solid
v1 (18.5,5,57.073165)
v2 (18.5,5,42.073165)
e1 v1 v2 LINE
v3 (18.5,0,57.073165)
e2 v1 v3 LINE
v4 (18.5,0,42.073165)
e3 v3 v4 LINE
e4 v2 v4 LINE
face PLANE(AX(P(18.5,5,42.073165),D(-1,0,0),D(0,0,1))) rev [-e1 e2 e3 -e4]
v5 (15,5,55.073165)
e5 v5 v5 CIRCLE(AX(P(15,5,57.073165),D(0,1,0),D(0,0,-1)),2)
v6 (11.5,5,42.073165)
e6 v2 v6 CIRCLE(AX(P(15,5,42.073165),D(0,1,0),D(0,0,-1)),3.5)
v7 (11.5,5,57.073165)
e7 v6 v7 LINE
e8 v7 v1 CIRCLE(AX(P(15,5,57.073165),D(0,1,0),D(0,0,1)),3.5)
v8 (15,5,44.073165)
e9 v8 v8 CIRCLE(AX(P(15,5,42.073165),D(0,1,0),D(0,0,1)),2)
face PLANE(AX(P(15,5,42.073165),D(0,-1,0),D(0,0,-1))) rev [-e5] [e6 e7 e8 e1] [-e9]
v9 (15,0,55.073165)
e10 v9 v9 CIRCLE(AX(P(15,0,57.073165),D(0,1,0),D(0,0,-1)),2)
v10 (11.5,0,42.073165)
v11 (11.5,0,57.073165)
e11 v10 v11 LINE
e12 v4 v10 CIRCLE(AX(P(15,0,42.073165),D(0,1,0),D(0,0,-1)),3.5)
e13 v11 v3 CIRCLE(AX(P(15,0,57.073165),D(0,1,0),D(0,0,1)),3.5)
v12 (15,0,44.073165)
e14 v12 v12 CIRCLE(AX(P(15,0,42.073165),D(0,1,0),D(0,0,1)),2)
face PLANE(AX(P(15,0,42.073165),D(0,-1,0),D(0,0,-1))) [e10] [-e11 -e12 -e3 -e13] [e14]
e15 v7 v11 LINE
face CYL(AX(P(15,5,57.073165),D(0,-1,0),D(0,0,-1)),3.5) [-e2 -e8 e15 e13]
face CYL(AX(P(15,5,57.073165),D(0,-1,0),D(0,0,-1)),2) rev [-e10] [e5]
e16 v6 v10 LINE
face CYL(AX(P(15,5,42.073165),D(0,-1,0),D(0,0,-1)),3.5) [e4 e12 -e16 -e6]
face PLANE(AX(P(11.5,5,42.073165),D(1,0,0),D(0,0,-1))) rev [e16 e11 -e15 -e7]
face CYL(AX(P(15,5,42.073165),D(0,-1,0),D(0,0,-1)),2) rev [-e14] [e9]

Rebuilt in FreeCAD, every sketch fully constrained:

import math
import FreeCAD as App
import Part
import Sketcher
from FreeCAD import Vector

doc = App.newDocument("Part")
params = doc.addObject("Spreadsheet::Sheet", "Params")
for row, (alias, value) in enumerate([
    ("sketch1_diameter", "4 mm"),
    ("sketch1_radius", "3.5 mm"),
    ("sketch1_height", "15 mm"),
    ("pad1_length", "5 mm"),
], start=1):
    params.set(f"A{row}", alias)
    params.set(f"B{row}", "=" + value)
    params.setAlias(f"B{row}", alias)

body = doc.addObject("PartDesign::Body", "Body")

# Sketch on XZ plane
sketch1 = doc.addObject("Sketcher::SketchObject", "Sketch")
body.addObject(sketch1)
sketch1.AttachmentSupport = (doc.XZ_Plane, [""])
sketch1.MapMode = "FlatFace"
sketch1.addGeometry(Part.LineSegment(Vector(18.5, 57.1, 0), Vector(18.5, 42.1, 0)), False)
sketch1.addGeometry(Part.ArcOfCircle(Part.Circle(Vector(15, 42.1, 0), Vector(0, 0, 1), 3.5), math.radians(180), math.radians(360)), False)
sketch1.addGeometry(Part.LineSegment(Vector(11.5, 42.1, 0), Vector(11.5, 57.1, 0)), False)
sketch1.addGeometry(Part.ArcOfCircle(Part.Circle(Vector(15, 57.1, 0), Vector(0, 0, 1), 3.5), math.radians(0), math.radians(180)), False)
sketch1.addGeometry(Part.Circle(Vector(15, 57.1, 0), Vector(0, 0, 1), 2), False)
sketch1.addGeometry(Part.Circle(Vector(15, 42.1, 0), Vector(0, 0, 1), 2), False)
sketch1.addConstraint(Sketcher.Constraint("Tangent", 0, 2, 1, 2))
sketch1.addConstraint(Sketcher.Constraint("Tangent", 1, 1, 2, 1))
sketch1.addConstraint(Sketcher.Constraint("Tangent", 2, 2, 3, 2))
sketch1.addConstraint(Sketcher.Constraint("Tangent", 3, 1, 0, 1))
sketch1.addConstraint(Sketcher.Constraint("Vertical", 0))
sketch1.addConstraint(Sketcher.Constraint("Vertical", 2))
sketch1.addConstraint(Sketcher.Constraint("Coincident", 4, 3, 3, 3))
sketch1.addConstraint(Sketcher.Constraint("Coincident", 5, 3, 1, 3))
sketch1.addConstraint(Sketcher.Constraint("Equal", 4, 5))
sketch1.addConstraint(Sketcher.Constraint("Diameter", 4, 4.0))
sketch1.addConstraint(Sketcher.Constraint("Radius", 1, 3.5))
sketch1.addConstraint(Sketcher.Constraint("DistanceY", 0, 2, 0, 1, 15.0))
sketch1.addConstraint(Sketcher.Constraint("DistanceX", -1, 1, 1, 3, 15.0))
sketch1.addConstraint(Sketcher.Constraint("DistanceY", -1, 1, 1, 3, 42.073165))
sketch1.setExpression("Constraints[9]", "Params.sketch1_diameter")
sketch1.setExpression("Constraints[10]", "Params.sketch1_radius")
sketch1.setExpression("Constraints[11]", "Params.sketch1_height")
pad1 = doc.addObject("PartDesign::Pad", "Pad")
body.addObject(pad1)
pad1.Profile = sketch1
pad1.setExpression("Length", "Params.pad1_length")
pad1.Reversed = True

doc.recompute()
